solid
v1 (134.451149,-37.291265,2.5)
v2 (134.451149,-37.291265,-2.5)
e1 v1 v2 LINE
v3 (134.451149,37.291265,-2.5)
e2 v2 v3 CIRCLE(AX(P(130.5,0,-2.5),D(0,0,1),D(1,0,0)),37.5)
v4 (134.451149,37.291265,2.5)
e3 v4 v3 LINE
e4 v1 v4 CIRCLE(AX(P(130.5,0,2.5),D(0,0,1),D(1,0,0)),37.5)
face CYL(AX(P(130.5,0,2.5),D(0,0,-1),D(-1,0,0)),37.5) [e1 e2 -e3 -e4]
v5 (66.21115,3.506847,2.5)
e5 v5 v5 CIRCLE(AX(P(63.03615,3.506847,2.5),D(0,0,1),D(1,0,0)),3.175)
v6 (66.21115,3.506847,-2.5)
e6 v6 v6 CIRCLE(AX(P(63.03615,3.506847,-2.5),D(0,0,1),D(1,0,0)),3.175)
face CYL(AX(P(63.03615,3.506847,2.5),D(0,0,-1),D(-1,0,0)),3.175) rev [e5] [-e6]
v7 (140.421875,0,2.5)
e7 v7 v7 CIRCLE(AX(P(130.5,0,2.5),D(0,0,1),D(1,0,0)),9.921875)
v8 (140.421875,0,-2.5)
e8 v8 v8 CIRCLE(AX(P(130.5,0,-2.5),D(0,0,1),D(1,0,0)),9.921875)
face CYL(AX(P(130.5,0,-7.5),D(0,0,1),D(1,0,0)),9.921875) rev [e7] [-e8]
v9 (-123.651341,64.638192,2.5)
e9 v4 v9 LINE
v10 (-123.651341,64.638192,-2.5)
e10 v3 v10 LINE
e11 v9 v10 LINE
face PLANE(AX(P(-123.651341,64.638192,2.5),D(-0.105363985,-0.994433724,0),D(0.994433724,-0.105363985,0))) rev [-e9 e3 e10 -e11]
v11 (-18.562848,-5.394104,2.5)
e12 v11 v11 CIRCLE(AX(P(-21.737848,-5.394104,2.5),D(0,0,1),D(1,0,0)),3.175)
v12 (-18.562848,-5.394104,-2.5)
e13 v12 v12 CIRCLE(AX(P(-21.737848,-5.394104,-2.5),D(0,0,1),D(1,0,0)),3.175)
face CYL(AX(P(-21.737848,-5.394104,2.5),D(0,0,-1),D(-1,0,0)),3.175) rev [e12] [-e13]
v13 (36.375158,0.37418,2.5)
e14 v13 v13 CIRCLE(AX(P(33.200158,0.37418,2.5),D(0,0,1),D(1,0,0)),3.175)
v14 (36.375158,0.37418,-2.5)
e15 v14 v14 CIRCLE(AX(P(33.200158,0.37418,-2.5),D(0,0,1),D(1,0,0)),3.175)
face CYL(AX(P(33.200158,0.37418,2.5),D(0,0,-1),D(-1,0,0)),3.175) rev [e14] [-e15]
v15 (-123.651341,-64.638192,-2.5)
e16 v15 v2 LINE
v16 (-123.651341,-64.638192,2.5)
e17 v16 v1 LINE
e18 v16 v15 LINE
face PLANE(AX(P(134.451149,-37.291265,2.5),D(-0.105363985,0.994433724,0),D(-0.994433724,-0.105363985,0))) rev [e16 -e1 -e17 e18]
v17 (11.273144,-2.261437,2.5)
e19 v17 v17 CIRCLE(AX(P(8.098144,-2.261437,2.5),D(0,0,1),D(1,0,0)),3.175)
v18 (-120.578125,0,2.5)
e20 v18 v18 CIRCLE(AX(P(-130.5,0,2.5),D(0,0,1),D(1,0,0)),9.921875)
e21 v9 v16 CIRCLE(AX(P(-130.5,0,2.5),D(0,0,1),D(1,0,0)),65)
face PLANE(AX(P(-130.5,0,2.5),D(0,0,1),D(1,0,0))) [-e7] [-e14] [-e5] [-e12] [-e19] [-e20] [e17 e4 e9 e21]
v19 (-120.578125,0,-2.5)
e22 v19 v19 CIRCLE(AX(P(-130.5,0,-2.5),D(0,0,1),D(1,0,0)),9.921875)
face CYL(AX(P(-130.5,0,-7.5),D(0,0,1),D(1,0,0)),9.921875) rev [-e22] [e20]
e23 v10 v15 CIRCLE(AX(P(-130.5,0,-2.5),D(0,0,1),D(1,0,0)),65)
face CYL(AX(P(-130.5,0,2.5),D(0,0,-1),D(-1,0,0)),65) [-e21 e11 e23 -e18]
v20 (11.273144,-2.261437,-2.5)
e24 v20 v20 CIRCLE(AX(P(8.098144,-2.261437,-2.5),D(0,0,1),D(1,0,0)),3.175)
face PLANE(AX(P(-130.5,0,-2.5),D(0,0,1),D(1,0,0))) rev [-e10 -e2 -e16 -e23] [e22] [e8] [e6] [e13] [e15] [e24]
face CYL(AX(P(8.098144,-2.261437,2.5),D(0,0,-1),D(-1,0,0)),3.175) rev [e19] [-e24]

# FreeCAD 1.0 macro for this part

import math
import FreeCAD as App
import Part
import Sketcher
from FreeCAD import Vector
Q = App.Units.Quantity

doc = App.newDocument("Part")
body = doc.addObject("PartDesign::Body", "Body")

# Sketch on XY plane
sketch1 = doc.addObject("Sketcher::SketchObject", "Sketch")
body.addObject(sketch1)
sketch1.AttachmentSupport = (doc.XY_Plane, [""])
sketch1.MapMode = "FlatFace"
sketch1.addGeometry([
    Part.LineSegment(Vector(134.5, 37.3, 0), Vector(-123.7, 64.6, 0)),  # 0
    Part.ArcOfCircle(Part.Circle(Vector(-130.5, 0, 0), Vector(0, 0, 1), 65), math.radians(84), math.radians(276)),  # 1
    Part.LineSegment(Vector(-123.7, -64.6, 0), Vector(134.5, -37.3, 0)),  # 2
    Part.ArcOfCircle(Part.Circle(Vector(130.5, 0, 0), Vector(0, 0, 1), 37.5), math.radians(-84), math.radians(84)),  # 3
    Part.Circle(Vector(-21.7, -5.4, 0), Vector(0, 0, 1), 3.2),  # 4
    Part.Circle(Vector(8.1, -2.3, 0), Vector(0, 0, 1), 3.2),  # 5
    Part.Circle(Vector(33.2, 0.4, 0), Vector(0, 0, 1), 3.2),  # 6
    Part.Circle(Vector(63, 3.5, 0), Vector(0, 0, 1), 3.2),  # 7
], False)
sketch1.addConstraint([
    Sketcher.Constraint("Tangent", 0, 2, 1, 1),
    Sketcher.Constraint("Tangent", 1, 2, 2, 1),
    Sketcher.Constraint("Tangent", 2, 2, 3, 1),
    Sketcher.Constraint("Tangent", 3, 2, 0, 1),
    Sketcher.Constraint("Equal", 4, 5),
    Sketcher.Constraint("Equal", 5, 6),
    Sketcher.Constraint("Equal", 6, 7),
    Sketcher.Constraint("Symmetric", 1, 3, 3, 3, -1, 1),
    Sketcher.Constraint("PointOnObject", 1, 3, -1),
    Sketcher.Constraint("Radius", 1, Q("65 mm")),
    Sketcher.Constraint("Radius", 3, Q("37.5 mm")),
    Sketcher.Constraint("Diameter", 4, Q("6.35 mm")),
    Sketcher.Constraint("DistanceX", 1, 3, 3, 3, Q("261 mm")),
    Sketcher.Constraint("DistanceX", 7, 3, 2, 2, Q("71.415 mm")),
    Sketcher.Constraint("DistanceX", 0, 2, 6, 3, Q("156.851499 mm")),
    Sketcher.Constraint("DistanceY", 5, 3, 3, 2, Q("39.552702 mm")),
    Sketcher.Constraint("DistanceY", -1, 1, 6, 3, Q("0.37418 mm")),
    Sketcher.Constraint("DistanceX", 4, 3, 5, 3, Q("29.835992 mm")),
    Sketcher.Constraint("DistanceY", 4, 3, 7, 3, Q("8.90095 mm")),
    Sketcher.Constraint("DistanceY", 1, 2, 4, 3, Q("59.244088 mm")),
    Sketcher.Constraint("DistanceX", 4, 3, -1, 1, Q("21.737848 mm")),
])
pad1 = doc.addObject("PartDesign::Pad", "Pad")
body.addObject(pad1)
pad1.Profile = sketch1
pad1.Length = 5
pad1.Midplane = True

# Sketch on XY plane
sketch2 = doc.addObject("Sketcher::SketchObject", "Sketch001")
body.addObject(sketch2)
sketch2.AttachmentSupport = (doc.XY_Plane, [""])
sketch2.MapMode = "FlatFace"
sketch2.AttachmentOffset = App.Placement(Vector(0, 0, 2.5), App.Rotation())
sketch2.addGeometry([
    Part.Circle(Vector(-130, 0, 0), Vector(0, 0, 1), 10),
    Part.Circle(Vector(130, 0, 0), Vector(0, 0, 1), 10),
], False)
sketch2.addConstraint([
    Sketcher.Constraint("Equal", 0, 1),
    Sketcher.Constraint("Symmetric", 0, 3, 1, 3, -1, 1),
    Sketcher.Constraint("PointOnObject", 0, 3, -1),
    Sketcher.Constraint("DistanceX", 0, 3, 1, 3, Q("261 mm")),
    Sketcher.Constraint("Diameter", 0, Q("19.84375 mm")),
])
pocket1 = doc.addObject("PartDesign::Pocket", "Pocket")
body.addObject(pocket1)
pocket1.Profile = sketch2
pocket1.Length = 10

doc.recompute()
